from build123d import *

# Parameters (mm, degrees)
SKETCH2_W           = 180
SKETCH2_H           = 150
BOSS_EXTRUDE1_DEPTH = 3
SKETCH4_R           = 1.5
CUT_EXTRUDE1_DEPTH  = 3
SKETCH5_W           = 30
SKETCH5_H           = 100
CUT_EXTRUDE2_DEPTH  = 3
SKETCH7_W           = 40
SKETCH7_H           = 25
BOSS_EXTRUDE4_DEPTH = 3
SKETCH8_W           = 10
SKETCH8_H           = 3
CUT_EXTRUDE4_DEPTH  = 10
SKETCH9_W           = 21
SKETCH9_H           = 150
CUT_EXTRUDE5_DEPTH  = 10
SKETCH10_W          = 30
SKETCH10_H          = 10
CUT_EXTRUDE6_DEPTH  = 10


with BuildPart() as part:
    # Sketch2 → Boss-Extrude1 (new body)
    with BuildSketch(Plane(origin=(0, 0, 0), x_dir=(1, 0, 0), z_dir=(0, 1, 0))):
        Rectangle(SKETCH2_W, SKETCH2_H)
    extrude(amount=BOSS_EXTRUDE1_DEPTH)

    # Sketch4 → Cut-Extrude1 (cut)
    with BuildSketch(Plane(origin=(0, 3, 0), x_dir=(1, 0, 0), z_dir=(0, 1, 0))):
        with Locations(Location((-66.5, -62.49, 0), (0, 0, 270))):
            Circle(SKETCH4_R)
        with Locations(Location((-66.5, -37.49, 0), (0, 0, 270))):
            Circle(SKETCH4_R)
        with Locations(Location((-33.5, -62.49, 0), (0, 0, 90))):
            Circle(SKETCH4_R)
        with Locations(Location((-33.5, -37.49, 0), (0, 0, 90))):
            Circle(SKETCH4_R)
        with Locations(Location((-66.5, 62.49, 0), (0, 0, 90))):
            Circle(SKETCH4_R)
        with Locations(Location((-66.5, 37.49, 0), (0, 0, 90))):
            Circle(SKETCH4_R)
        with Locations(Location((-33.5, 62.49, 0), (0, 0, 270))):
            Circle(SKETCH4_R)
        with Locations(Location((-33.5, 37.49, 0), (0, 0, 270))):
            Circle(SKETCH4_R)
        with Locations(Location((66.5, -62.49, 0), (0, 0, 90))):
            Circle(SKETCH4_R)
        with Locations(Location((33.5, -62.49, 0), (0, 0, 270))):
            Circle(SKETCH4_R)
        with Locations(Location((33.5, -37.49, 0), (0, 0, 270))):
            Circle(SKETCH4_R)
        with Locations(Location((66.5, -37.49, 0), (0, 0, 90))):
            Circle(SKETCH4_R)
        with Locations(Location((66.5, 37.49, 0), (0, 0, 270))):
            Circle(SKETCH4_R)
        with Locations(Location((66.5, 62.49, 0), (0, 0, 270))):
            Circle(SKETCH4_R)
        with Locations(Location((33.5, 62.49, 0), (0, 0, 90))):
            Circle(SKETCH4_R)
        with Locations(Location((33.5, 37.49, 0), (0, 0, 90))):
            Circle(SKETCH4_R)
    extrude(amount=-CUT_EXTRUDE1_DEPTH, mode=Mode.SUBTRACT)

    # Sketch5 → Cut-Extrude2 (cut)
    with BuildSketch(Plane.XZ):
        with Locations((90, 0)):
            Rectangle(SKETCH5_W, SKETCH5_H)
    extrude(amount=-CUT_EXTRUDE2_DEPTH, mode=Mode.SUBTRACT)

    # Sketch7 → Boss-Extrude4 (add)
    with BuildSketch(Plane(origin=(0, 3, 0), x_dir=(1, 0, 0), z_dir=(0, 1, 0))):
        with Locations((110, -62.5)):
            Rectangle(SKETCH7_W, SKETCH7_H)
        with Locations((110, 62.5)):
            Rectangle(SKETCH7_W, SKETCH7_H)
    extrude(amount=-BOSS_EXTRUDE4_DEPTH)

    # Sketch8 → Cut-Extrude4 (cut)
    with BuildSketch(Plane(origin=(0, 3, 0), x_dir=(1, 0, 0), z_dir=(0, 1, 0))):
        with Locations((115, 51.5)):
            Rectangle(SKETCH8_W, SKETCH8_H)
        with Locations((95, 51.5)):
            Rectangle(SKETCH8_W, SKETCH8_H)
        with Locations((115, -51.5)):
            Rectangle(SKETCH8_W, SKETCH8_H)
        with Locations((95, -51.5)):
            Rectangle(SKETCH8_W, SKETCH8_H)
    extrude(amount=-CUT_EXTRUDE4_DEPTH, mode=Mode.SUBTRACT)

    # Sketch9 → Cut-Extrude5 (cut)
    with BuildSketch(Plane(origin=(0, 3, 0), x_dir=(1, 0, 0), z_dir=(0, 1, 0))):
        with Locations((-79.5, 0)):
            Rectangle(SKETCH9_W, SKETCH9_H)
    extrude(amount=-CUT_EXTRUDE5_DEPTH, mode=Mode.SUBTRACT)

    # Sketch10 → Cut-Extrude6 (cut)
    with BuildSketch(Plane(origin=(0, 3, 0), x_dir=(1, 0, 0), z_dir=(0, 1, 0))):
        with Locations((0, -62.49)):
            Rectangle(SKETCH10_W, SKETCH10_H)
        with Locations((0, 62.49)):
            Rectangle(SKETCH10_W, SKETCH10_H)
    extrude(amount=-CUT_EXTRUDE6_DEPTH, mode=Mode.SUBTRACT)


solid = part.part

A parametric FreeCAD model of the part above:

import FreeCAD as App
import Part
import Sketcher
from FreeCAD import Vector

doc = App.newDocument("Part")
body = doc.addObject("PartDesign::Body", "Body")

sketch1 = body.newObject("Sketcher::SketchObject", "Sketch")
sketch1.AttachmentSupport = (doc.getObject("XZ_Plane"), [""])
sketch1.MapMode = "FlatFace"
sketch1.addGeometry([
    Part.LineSegment(Vector(-90, -75, 0), Vector(-90, 75, 0)),
    Part.LineSegment(Vector(-90, 75, 0), Vector(90, 75, 0)),
    Part.LineSegment(Vector(90, 75, 0), Vector(90, -75, 0)),
    Part.LineSegment(Vector(90, -75, 0), Vector(-90, -75, 0)),
], False)
sketch1.addConstraint([
    Sketcher.Constraint("Coincident", 0, 2, 1, 1),
    Sketcher.Constraint("Coincident", 1, 2, 2, 1),
    Sketcher.Constraint("Coincident", 2, 2, 3, 1),
    Sketcher.Constraint("Coincident", 3, 2, 0, 1),
    Sketcher.Constraint("Vertical", 0),
    Sketcher.Constraint("Horizontal", 1),
    Sketcher.Constraint("Vertical", 2),
    Sketcher.Constraint("Horizontal", 3),
    Sketcher.Constraint("Symmetric", 0, 2, 2, 2, -1, 1),
    Sketcher.Constraint("DistanceX", 1, 1, 1, 2, 180.0),
    Sketcher.Constraint("DistanceY", 0, 1, 0, 2, 150.0),
])
pad1 = body.newObject("PartDesign::Pad", "Pad")
pad1.Profile = sketch1
pad1.Length = 3
pad1.Reversed = True

sketch2 = body.newObject("Sketcher::SketchObject", "Sketch001")
sketch2.AttachmentSupport = (doc.getObject("XZ_Plane"), [""])
sketch2.MapMode = "FlatFace"
sketch2.AttachmentOffset = App.Placement(Vector(0, 0, -3), App.Rotation())
sketch2.addGeometry([
    Part.Circle(Vector(-66.5, 62.5, 0), Vector(0, 0, 1), 1.5),
    Part.Circle(Vector(-66.5, 37.5, 0), Vector(0, 0, 1), 1.5),
    Part.Circle(Vector(-33.5, 62.5, 0), Vector(0, 0, 1), 1.5),
    Part.Circle(Vector(-33.5, 37.5, 0), Vector(0, 0, 1), 1.5),
    Part.Circle(Vector(-66.5, -62.5, 0), Vector(0, 0, 1), 1.5),
    Part.Circle(Vector(-66.5, -37.5, 0), Vector(0, 0, 1), 1.5),
    Part.Circle(Vector(-33.5, -62.5, 0), Vector(0, 0, 1), 1.5),
    Part.Circle(Vector(-33.5, -37.5, 0), Vector(0, 0, 1), 1.5),
    Part.Circle(Vector(66.5, 62.5, 0), Vector(0, 0, 1), 1.5),
    Part.Circle(Vector(33.5, 62.5, 0), Vector(0, 0, 1), 1.5),
    Part.Circle(Vector(33.5, 37.5, 0), Vector(0, 0, 1), 1.5),
    Part.Circle(Vector(66.5, 37.5, 0), Vector(0, 0, 1), 1.5),
    Part.Circle(Vector(66.5, -37.5, 0), Vector(0, 0, 1), 1.5),
    Part.Circle(Vector(66.5, -62.5, 0), Vector(0, 0, 1), 1.5),
    Part.Circle(Vector(33.5, -62.5, 0), Vector(0, 0, 1), 1.5),
    Part.Circle(Vector(33.5, -37.5, 0), Vector(0, 0, 1), 1.5),
], False)
sketch2.addConstraint([
    Sketcher.Constraint("Equal", 0, 1),
    Sketcher.Constraint("Equal", 1, 2),
    Sketcher.Constraint("Equal", 2, 3),
    Sketcher.Constraint("Equal", 3, 4),
    Sketcher.Constraint("Equal", 4, 5),
    Sketcher.Constraint("Equal", 5, 6),
    Sketcher.Constraint("Equal", 6, 7),
    Sketcher.Constraint("Equal", 7, 8),
    Sketcher.Constraint("Equal", 8, 9),
    Sketcher.Constraint("Equal", 9, 10),
    Sketcher.Constraint("Equal", 10, 11),
    Sketcher.Constraint("Equal", 11, 12),
    Sketcher.Constraint("Equal", 12, 13),
    Sketcher.Constraint("Equal", 13, 14),
    Sketcher.Constraint("Equal", 14, 15),
    Sketcher.Constraint("Symmetric", 4, 3, 8, 3, -1, 1),
    Sketcher.Constraint("Symmetric", 6, 3, 9, 3, -1, 1),
    Sketcher.Constraint("Symmetric", 7, 3, 10, 3, -1, 1),
    Sketcher.Constraint("Symmetric", 5, 3, 11, 3, -1, 1),
    Sketcher.Constraint("Symmetric", 1, 3, 12, 3, -1, 1),
    Sketcher.Constraint("Symmetric", 0, 3, 13, 3, -1, 1),
    Sketcher.Constraint("Symmetric", 2, 3, 14, 3, -1, 1),
    Sketcher.Constraint("Symmetric", 3, 3, 15, 3, -1, 1),
    Sketcher.Constraint("Symmetric", 0, 3, 8, 3, -2),
    Sketcher.Constraint("Symmetric", 2, 3, 9, 3, -2),
    Sketcher.Constraint("Symmetric", 3, 3, 10, 3, -2),
    Sketcher.Constraint("Symmetric", 1, 3, 11, 3, -2),
    Sketcher.Constraint("Horizontal", 0, 3, 2, 3),
    Sketcher.Constraint("Horizontal", 1, 3, 3, 3),
    Sketcher.Constraint("Vertical", 0, 3, 1, 3),
    Sketcher.Constraint("Vertical", 2, 3, 3, 3),
    Sketcher.Constraint("Diameter", 0, 3.0),
    Sketcher.Constraint("DistanceY", 1, 3, 0, 3, 25.0),
    Sketcher.Constraint("DistanceX", 0, 3, 2, 3, 33.0),
    Sketcher.Constraint("DistanceX", 2, 3, 8, 3, 100.0),
    Sketcher.Constraint("DistanceY", -1, 1, 0, 3, 62.49),
])
pocket1 = body.newObject("PartDesign::Pocket", "Pocket")
pocket1.Profile = sketch2
pocket1.Length = 3
pocket1.Reversed = True

sketch3 = body.newObject("Sketcher::SketchObject", "Sketch002")
sketch3.AttachmentSupport = (doc.getObject("XZ_Plane"), [""])
sketch3.MapMode = "FlatFace"
sketch3.addGeometry([
    Part.LineSegment(Vector(75, 50, 0), Vector(75, -50, 0)),
    Part.LineSegment(Vector(75, -50, 0), Vector(105, -50, 0)),
    Part.LineSegment(Vector(105, -50, 0), Vector(105, 50, 0)),
    Part.LineSegment(Vector(105, 50, 0), Vector(75, 50, 0)),
], False)
sketch3.addConstraint([
    Sketcher.Constraint("Coincident", 0, 2, 1, 1),
    Sketcher.Constraint("Coincident", 1, 2, 2, 1),
    Sketcher.Constraint("Coincident", 2, 2, 3, 1),
    Sketcher.Constraint("Coincident", 3, 2, 0, 1),
    Sketcher.Constraint("Vertical", 0),
    Sketcher.Constraint("Horizontal", 1),
    Sketcher.Constraint("Vertical", 2),
    Sketcher.Constraint("Horizontal", 3),
    Sketcher.Constraint("DistanceX", 1, 1, 1, 2, 30.0),
    Sketcher.Constraint("DistanceY", 0, 2, 0, 1, 100.0),
    Sketcher.Constraint("DistanceX", -1, 1, 0, 2, 75.0),
    Sketcher.Constraint("DistanceY", 0, 2, -1, 1, 50.0),
])
pocket2 = body.newObject("PartDesign::Pocket", "Pocket001")
pocket2.Profile = sketch3
pocket2.Length = 3

sketch4 = body.newObject("Sketcher::SketchObject", "Sketch003")
sketch4.AttachmentSupport = (doc.getObject("XZ_Plane"), [""])
sketch4.MapMode = "FlatFace"
sketch4.AttachmentOffset = App.Placement(Vector(0, 0, -3), App.Rotation())
sketch4.addGeometry([
    Part.LineSegment(Vector(90, 50, 0), Vector(90, 75, 0)),
    Part.LineSegment(Vector(90, 75, 0), Vector(130, 75, 0)),
    Part.LineSegment(Vector(130, 75, 0), Vector(130, 50, 0)),
    Part.LineSegment(Vector(130, 50, 0), Vector(90, 50, 0)),
    Part.LineSegment(Vector(90, -75, 0), Vector(90, -50, 0)),
    Part.LineSegment(Vector(90, -50, 0), Vector(130, -50, 0)),
    Part.LineSegment(Vector(130, -50, 0), Vector(130, -75, 0)),
    Part.LineSegment(Vector(130, -75, 0), Vector(90, -75, 0)),
], False)
sketch4.addConstraint([
    Sketcher.Constraint("Coincident", 0, 2, 1, 1),
    Sketcher.Constraint("Coincident", 1, 2, 2, 1),
    Sketcher.Constraint("Coincident", 2, 2, 3, 1),
    Sketcher.Constraint("Coincident", 3, 2, 0, 1),
    Sketcher.Constraint("Coincident", 4, 2, 5, 1),
    Sketcher.Constraint("Coincident", 5, 2, 6, 1),
    Sketcher.Constraint("Coincident", 6, 2, 7, 1),
    Sketcher.Constraint("Coincident", 7, 2, 4, 1),
    Sketcher.Constraint("Vertical", 0),
    Sketcher.Constraint("Horizontal", 1),
    Sketcher.Constraint("Vertical", 2),
    Sketcher.Constraint("Horizontal", 3),
    Sketcher.Constraint("Vertical", 4),
    Sketcher.Constraint("Horizontal", 5),
    Sketcher.Constraint("Vertical", 6),
    Sketcher.Constraint("Horizontal", 7),
    Sketcher.Constraint("Symmetric", 3, 2, 4, 2, -1),
    Sketcher.Constraint("Symmetric", 1, 2, 6, 2, -1),
    Sketcher.Constraint("DistanceX", 1, 1, 1, 2, 40.0),
    Sketcher.Constraint("DistanceY", 0, 1, 0, 2, 25.0),
    Sketcher.Constraint("DistanceX", -1, 1, 0, 2, 90.0),
    Sketcher.Constraint("DistanceY", -1, 1, 0, 2, 75.0),
])
pad2 = body.newObject("PartDesign::Pad", "Pad001")
pad2.Profile = sketch4
pad2.Length = 3

sketch5 = body.newObject("Sketcher::SketchObject", "Sketch004")
sketch5.AttachmentSupport = (doc.getObject("XZ_Plane"), [""])
sketch5.MapMode = "FlatFace"
sketch5.AttachmentOffset = App.Placement(Vector(0, 0, -3), App.Rotation())
sketch5.addGeometry([
    Part.LineSegment(Vector(110, -53, 0), Vector(110, -50, 0)),
    Part.LineSegment(Vector(110, -50, 0), Vector(120, -50, 0)),
    Part.LineSegment(Vector(120, -50, 0), Vector(120, -53, 0)),
    Part.LineSegment(Vector(120, -53, 0), Vector(110, -53, 0)),
    Part.LineSegment(Vector(90, -53, 0), Vector(90, -50, 0)),
    Part.LineSegment(Vector(90, -50, 0), Vector(100, -50, 0)),
    Part.LineSegment(Vector(100, -50, 0), Vector(100, -53, 0)),
    Part.LineSegment(Vector(100, -53, 0), Vector(90, -53, 0)),
    Part.LineSegment(Vector(110, 50, 0), Vector(110, 53, 0)),
    Part.LineSegment(Vector(110, 53, 0), Vector(120, 53, 0)),
    Part.LineSegment(Vector(120, 53, 0), Vector(120, 50, 0)),
    Part.LineSegment(Vector(120, 50, 0), Vector(110, 50, 0)),
    Part.LineSegment(Vector(90, 50, 0), Vector(90, 53, 0)),
    Part.LineSegment(Vector(90, 53, 0), Vector(100, 53, 0)),
    Part.LineSegment(Vector(100, 53, 0), Vector(100, 50, 0)),
    Part.LineSegment(Vector(100, 50, 0), Vector(90, 50, 0)),
], False)
sketch5.addConstraint([
    Sketcher.Constraint("Coincident", 0, 2, 1, 1),
    Sketcher.Constraint("Coincident", 1, 2, 2, 1),
    Sketcher.Constraint("Coincident", 2, 2, 3, 1),
    Sketcher.Constraint("Coincident", 3, 2, 0, 1),
    Sketcher.Constraint("Coincident", 4, 2, 5, 1),
    Sketcher.Constraint("Coincident", 5, 2, 6, 1),
    Sketcher.Constraint("Coincident", 6, 2, 7, 1),
    Sketcher.Constraint("Coincident", 7, 2, 4, 1),
    Sketcher.Constraint("Coincident", 8, 2, 9, 1),
    Sketcher.Constraint("Coincident", 9, 2, 10, 1),
    Sketcher.Constraint("Coincident", 10, 2, 11, 1),
    Sketcher.Constraint("Coincident", 11, 2, 8, 1),
    Sketcher.Constraint("Coincident", 12, 2, 13, 1),
    Sketcher.Constraint("Coincident", 13, 2, 14, 1),
    Sketcher.Constraint("Coincident", 14, 2, 15, 1),
    Sketcher.Constraint("Coincident", 15, 2, 12, 1),
    Sketcher.Constraint("Vertical", 0),
    Sketcher.Constraint("Horizontal", 1),
    Sketcher.Constraint("Vertical", 2),
    Sketcher.Constraint("Horizontal", 3),
    Sketcher.Constraint("Vertical", 4),
    Sketcher.Constraint("Horizontal", 5),
    Sketcher.Constraint("Vertical", 6),
    Sketcher.Constraint("Horizontal", 7),
    Sketcher.Constraint("Vertical", 8),
    Sketcher.Constraint("Horizontal", 9),
    Sketcher.Constraint("Vertical", 10),
    Sketcher.Constraint("Horizontal", 11),
    Sketcher.Constraint("Vertical", 12),
    Sketcher.Constraint("Horizontal", 13),
    Sketcher.Constraint("Vertical", 14),
    Sketcher.Constraint("Horizontal", 15),
    Sketcher.Constraint("Symmetric", 3, 2, 8, 2, -1),
    Sketcher.Constraint("Symmetric", 1, 2, 10, 2, -1),
    Sketcher.Constraint("Symmetric", 7, 2, 12, 2, -1),
    Sketcher.Constraint("Symmetric", 5, 2, 14, 2, -1),
    Sketcher.Constraint("Horizontal", 1, 2, 4, 2),
    Sketcher.Constraint("Horizontal", 3, 2, 6, 2),
    Sketcher.Constraint("Equal", 3, 5),
    Sketcher.Constraint("DistanceX", 1, 1, 1, 2, 10.0),
    Sketcher.Constraint("DistanceY", 0, 1, 0, 2, 3.0),
    Sketcher.Constraint("DistanceX", -1, 1, 0, 2, 110.0),
    Sketcher.Constraint("DistanceY", 0, 2, -1, 1, 50.0),
    Sketcher.Constraint("DistanceX", -1, 1, 4, 2, 90.0),
])
pocket3 = body.newObject("PartDesign::Pocket", "Pocket002")
pocket3.Profile = sketch5
pocket3.Length = 10
pocket3.Reversed = True

sketch6 = body.newObject("Sketcher::SketchObject", "Sketch005")
sketch6.AttachmentSupport = (doc.getObject("XZ_Plane"), [""])
sketch6.MapMode = "FlatFace"
sketch6.AttachmentOffset = App.Placement(Vector(0, 0, -3), App.Rotation())
sketch6.addGeometry([
    Part.LineSegment(Vector(-90, -75, 0), Vector(-90, 75, 0)),
    Part.LineSegment(Vector(-90, 75, 0), Vector(-69, 75, 0)),
    Part.LineSegment(Vector(-69, 75, 0), Vector(-69, -75, 0)),
    Part.LineSegment(Vector(-69, -75, 0), Vector(-90, -75, 0)),
], False)
sketch6.addConstraint([
    Sketcher.Constraint("Coincident", 0, 2, 1, 1),
    Sketcher.Constraint("Coincident", 1, 2, 2, 1),
    Sketcher.Constraint("Coincident", 2, 2, 3, 1),
    Sketcher.Constraint("Coincident", 3, 2, 0, 1),
    Sketcher.Constraint("Vertical", 0),
    Sketcher.Constraint("Horizontal", 1),
    Sketcher.Constraint("Vertical", 2),
    Sketcher.Constraint("Horizontal", 3),
    Sketcher.Constraint("DistanceX", 1, 1, 1, 2, 21.0),
    Sketcher.Constraint("DistanceY", 0, 1, 0, 2, 150.0),
    Sketcher.Constraint("DistanceX", 0, 2, -1, 1, 90.0),
    Sketcher.Constraint("DistanceY", -1, 1, 0, 2, 75.0),
])
pocket4 = body.newObject("PartDesign::Pocket", "Pocket003")
pocket4.Profile = sketch6
pocket4.Length = 10
pocket4.Reversed = True

sketch7 = body.newObject("Sketcher::SketchObject", "Sketch006")
sketch7.AttachmentSupport = (doc.getObject("XZ_Plane"), [""])
sketch7.MapMode = "FlatFace"
sketch7.AttachmentOffset = App.Placement(Vector(0, 0, -3), App.Rotation())
sketch7.addGeometry([
    Part.LineSegment(Vector(-15, 57, 0), Vector(-15, 67, 0)),
    Part.LineSegment(Vector(-15, 67, 0), Vector(15, 67, 0)),
    Part.LineSegment(Vector(15, 67, 0), Vector(15, 57, 0)),
    Part.LineSegment(Vector(15, 57, 0), Vector(-15, 57, 0)),
    Part.LineSegment(Vector(-15, -67, 0), Vector(-15, -57, 0)),
    Part.LineSegment(Vector(-15, -57, 0), Vector(15, -57, 0)),
    Part.LineSegment(Vector(15, -57, 0), Vector(15, -67, 0)),
    Part.LineSegment(Vector(15, -67, 0), Vector(-15, -67, 0)),
], False)
sketch7.addConstraint([
    Sketcher.Constraint("Coincident", 0, 2, 1, 1),
    Sketcher.Constraint("Coincident", 1, 2, 2, 1),
    Sketcher.Constraint("Coincident", 2, 2, 3, 1),
    Sketcher.Constraint("Coincident", 3, 2, 0, 1),
    Sketcher.Constraint("Coincident", 4, 2, 5, 1),
    Sketcher.Constraint("Coincident", 5, 2, 6, 1),
    Sketcher.Constraint("Coincident", 6, 2, 7, 1),
    Sketcher.Constraint("Coincident", 7, 2, 4, 1),
    Sketcher.Constraint("Vertical", 0),
    Sketcher.Constraint("Horizontal", 1),
    Sketcher.Constraint("Vertical", 2),
    Sketcher.Constraint("Horizontal", 3),
    Sketcher.Constraint("Vertical", 4),
    Sketcher.Constraint("Horizontal", 5),
    Sketcher.Constraint("Vertical", 6),
    Sketcher.Constraint("Horizontal", 7),
    Sketcher.Constraint("Symmetric", 2, 2, 4, 2, -1, 1),
    Sketcher.Constraint("Symmetric", 0, 2, 6, 2, -1, 1),
    Sketcher.Constraint("Vertical", 3, 2, 4, 2),
    Sketcher.Constraint("DistanceX", 1, 1, 1, 2, 30.0),
    Sketcher.Constraint("DistanceY", 0, 1, 0, 2, 10.0),
    Sketcher.Constraint("DistanceY", -1, 1, 0, 2, 67.49),
])
pocket5 = body.newObject("PartDesign::Pocket", "Pocket004")
pocket5.Profile = sketch7
pocket5.Length = 10
pocket5.Reversed = True

doc.recompute()
